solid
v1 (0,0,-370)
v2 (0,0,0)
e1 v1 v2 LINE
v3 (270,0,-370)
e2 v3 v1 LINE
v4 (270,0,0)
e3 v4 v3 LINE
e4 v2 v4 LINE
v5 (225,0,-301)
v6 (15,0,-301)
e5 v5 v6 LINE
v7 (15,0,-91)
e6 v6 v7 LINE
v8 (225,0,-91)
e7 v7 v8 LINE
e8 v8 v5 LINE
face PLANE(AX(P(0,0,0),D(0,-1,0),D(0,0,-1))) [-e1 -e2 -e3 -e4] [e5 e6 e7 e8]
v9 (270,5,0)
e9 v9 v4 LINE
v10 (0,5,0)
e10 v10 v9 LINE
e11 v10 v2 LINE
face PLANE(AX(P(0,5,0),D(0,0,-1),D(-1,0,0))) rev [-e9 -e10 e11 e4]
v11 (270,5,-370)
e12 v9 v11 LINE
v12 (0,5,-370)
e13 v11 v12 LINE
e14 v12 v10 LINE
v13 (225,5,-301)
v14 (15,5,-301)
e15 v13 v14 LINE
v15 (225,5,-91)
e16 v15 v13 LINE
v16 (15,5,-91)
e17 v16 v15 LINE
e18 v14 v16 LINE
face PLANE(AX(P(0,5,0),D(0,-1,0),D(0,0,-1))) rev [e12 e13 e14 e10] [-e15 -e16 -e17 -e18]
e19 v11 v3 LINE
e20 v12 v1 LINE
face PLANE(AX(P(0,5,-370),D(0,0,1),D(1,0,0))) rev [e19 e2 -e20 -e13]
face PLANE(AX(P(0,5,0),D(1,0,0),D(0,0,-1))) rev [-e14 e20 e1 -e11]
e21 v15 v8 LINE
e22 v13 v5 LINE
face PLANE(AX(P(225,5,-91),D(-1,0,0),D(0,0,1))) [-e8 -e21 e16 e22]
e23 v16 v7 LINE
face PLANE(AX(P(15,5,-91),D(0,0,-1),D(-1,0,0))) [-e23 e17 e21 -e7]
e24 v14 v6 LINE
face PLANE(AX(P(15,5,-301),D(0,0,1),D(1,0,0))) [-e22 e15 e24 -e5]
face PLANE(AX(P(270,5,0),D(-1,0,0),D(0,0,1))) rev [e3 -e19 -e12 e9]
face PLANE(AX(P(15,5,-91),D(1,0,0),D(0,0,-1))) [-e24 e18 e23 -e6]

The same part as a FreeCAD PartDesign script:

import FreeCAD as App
import Part
import Sketcher

V = App.Vector

doc = App.newDocument("Part")
body = doc.addObject("PartDesign::Body", "Body")

sketch1 = body.newObject("Sketcher::SketchObject", "Sketch")
sketch1.AttachmentSupport = (doc.getObject("XZ_Plane"), [""])
sketch1.MapMode = "FlatFace"
sketch1.addGeometry([
    Part.LineSegment(V(0, -370, 0), V(0, 0, 0)),
    Part.LineSegment(V(0, 0, 0), V(270, 0, 0)),
    Part.LineSegment(V(270, 0, 0), V(270, -370, 0)),
    Part.LineSegment(V(270, -370, 0), V(0, -370, 0)),
    Part.LineSegment(V(225, -91, 0), V(15, -91, 0)),
    Part.LineSegment(V(15, -91, 0), V(15, -301, 0)),
    Part.LineSegment(V(15, -301, 0), V(225, -301, 0)),
    Part.LineSegment(V(225, -301, 0), V(225, -91, 0)),
], False)
sketch1.addConstraint([
    Sketcher.Constraint("Coincident", 0, 2, 1, 1),
    Sketcher.Constraint("Coincident", 1, 2, 2, 1),
    Sketcher.Constraint("Coincident", 2, 2, 3, 1),
    Sketcher.Constraint("Coincident", 3, 2, 0, 1),
    Sketcher.Constraint("Coincident", 4, 2, 5, 1),
    Sketcher.Constraint("Coincident", 5, 2, 6, 1),
    Sketcher.Constraint("Coincident", 6, 2, 7, 1),
    Sketcher.Constraint("Coincident", 7, 2, 4, 1),
    Sketcher.Constraint("Vertical", 0),
    Sketcher.Constraint("Horizontal", 1),
    Sketcher.Constraint("Vertical", 2),
    Sketcher.Constraint("Horizontal", 3),
    Sketcher.Constraint("Horizontal", 4),
    Sketcher.Constraint("Vertical", 5),
    Sketcher.Constraint("Horizontal", 6),
    Sketcher.Constraint("Vertical", 7),
    Sketcher.Constraint("Coincident", 0, 2, -1, 1),
    Sketcher.Constraint("Equal", 6, 5),
    Sketcher.Constraint("DistanceX", 1, 1, 1, 2, 270.0),
    Sketcher.Constraint("DistanceX", 4, 2, 4, 1, 210.0),
    Sketcher.Constraint("DistanceY", 0, 1, 0, 2, 370.0),
    Sketcher.Constraint("DistanceX", -1, 1, 4, 2, 15.0),
    Sketcher.Constraint("DistanceY", 4, 2, -1, 1, 91.0),
])
pad1 = body.newObject("PartDesign::Pad", "Pad")
pad1.Profile = sketch1
pad1.Length = 5
pad1.Reversed = True

doc.recompute()
